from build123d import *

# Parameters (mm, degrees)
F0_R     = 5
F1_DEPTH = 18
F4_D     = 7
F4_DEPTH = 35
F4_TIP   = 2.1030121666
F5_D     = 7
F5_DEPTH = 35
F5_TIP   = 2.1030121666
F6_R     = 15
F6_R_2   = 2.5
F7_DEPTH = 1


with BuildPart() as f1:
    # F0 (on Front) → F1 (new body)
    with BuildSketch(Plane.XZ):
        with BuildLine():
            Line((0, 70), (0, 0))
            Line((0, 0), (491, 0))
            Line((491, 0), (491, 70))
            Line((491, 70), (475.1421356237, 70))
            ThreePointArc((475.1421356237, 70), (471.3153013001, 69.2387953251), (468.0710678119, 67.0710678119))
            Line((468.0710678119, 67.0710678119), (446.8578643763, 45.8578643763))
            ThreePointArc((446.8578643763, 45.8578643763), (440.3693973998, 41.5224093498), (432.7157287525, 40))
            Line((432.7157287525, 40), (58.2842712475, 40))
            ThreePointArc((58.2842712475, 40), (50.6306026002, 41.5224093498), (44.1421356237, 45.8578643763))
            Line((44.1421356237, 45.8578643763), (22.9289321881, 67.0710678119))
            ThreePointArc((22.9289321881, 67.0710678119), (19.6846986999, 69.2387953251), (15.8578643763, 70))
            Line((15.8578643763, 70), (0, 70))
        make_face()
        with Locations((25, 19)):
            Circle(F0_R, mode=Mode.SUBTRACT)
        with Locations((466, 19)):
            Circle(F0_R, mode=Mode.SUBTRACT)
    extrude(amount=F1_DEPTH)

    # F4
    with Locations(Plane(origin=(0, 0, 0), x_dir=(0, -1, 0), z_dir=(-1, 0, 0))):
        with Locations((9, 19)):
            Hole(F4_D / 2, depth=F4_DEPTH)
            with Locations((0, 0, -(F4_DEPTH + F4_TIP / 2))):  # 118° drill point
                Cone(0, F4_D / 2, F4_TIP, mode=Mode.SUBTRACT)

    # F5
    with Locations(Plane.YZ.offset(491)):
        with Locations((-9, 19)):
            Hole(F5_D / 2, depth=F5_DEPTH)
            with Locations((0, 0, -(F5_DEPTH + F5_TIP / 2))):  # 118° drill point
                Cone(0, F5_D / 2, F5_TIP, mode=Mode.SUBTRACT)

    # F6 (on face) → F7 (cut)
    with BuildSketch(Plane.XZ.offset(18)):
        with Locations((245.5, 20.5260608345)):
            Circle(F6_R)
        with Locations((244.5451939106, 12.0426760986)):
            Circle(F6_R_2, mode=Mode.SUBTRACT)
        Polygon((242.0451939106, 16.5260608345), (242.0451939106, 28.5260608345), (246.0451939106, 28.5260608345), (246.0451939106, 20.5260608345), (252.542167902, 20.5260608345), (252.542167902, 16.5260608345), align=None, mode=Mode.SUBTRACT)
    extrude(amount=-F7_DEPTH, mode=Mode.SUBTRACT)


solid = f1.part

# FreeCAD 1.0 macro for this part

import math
import FreeCAD as App
import Part
import Sketcher

V = App.Vector


def add_polygon(sketch, points):
    """Adds a closed chain of lines whose ends are joined by coincident constraints."""
    first, n = sketch.GeometryCount, len(points)
    for a, b in zip(points, points[1:] + points[:1]):
        sketch.addGeometry(Part.LineSegment(App.Vector(*a, 0), App.Vector(*b, 0)), False)
    for i in range(n):
        sketch.addConstraint(Sketcher.Constraint("Coincident", first + i, 2, first + (i + 1) % n, 1))

doc = App.newDocument("Part")
body = doc.addObject("PartDesign::Body", "Body")

sketch1 = body.newObject("Sketcher::SketchObject", "Sketch")
sketch1.AttachmentSupport = (doc.getObject("XZ_Plane"), [""])
sketch1.MapMode = "FlatFace"
sketch1.addGeometry([
    Part.LineSegment(V(0, 70, 0), V(0, 0, 0)),
    Part.LineSegment(V(0, 0, 0), V(491, 0, 0)),
    Part.LineSegment(V(491, 0, 0), V(491, 70, 0)),
    Part.LineSegment(V(491, 70, 0), V(475.142136, 70, 0)),
    Part.ArcOfCircle(Part.Circle(V(475.142136, 60, 0), V(0, 0, 1), 10), math.radians(90), math.radians(135)),
    Part.LineSegment(V(468.071068, 67.071068, 0), V(446.857864, 45.857864, 0)),
    Part.ArcOfCircle(Part.Circle(V(432.715729, 60, 0), V(0, 0, 1), 20), math.radians(-90), math.radians(-45)),
    Part.LineSegment(V(432.715729, 40, 0), V(58.284271, 40, 0)),
    Part.ArcOfCircle(Part.Circle(V(58.284271, 60, 0), V(0, 0, 1), 20), math.radians(-135), math.radians(-90)),
    Part.LineSegment(V(44.142136, 45.857864, 0), V(22.928932, 67.071068, 0)),
    Part.ArcOfCircle(Part.Circle(V(15.857864, 60, 0), V(0, 0, 1), 10), math.radians(45), math.radians(90)),
    Part.LineSegment(V(15.857864, 70, 0), V(0, 70, 0)),
    Part.Circle(V(25, 19, 0), V(0, 0, 1), 5),
    Part.Circle(V(466, 19, 0), V(0, 0, 1), 5),
], False)
sketch1.addConstraint([
    Sketcher.Constraint("Coincident", 0, 2, 1, 1),
    Sketcher.Constraint("Coincident", 1, 2, 2, 1),
    Sketcher.Constraint("Coincident", 2, 2, 3, 1),
    Sketcher.Constraint("Tangent", 3, 2, 4, 1),
    Sketcher.Constraint("Tangent", 4, 2, 5, 1),
    Sketcher.Constraint("Tangent", 5, 2, 6, 2),
    Sketcher.Constraint("Tangent", 6, 1, 7, 1),
    Sketcher.Constraint("Tangent", 7, 2, 8, 2),
    Sketcher.Constraint("Tangent", 8, 1, 9, 1),
    Sketcher.Constraint("Tangent", 9, 2, 10, 1),
    Sketcher.Constraint("Tangent", 10, 2, 11, 1),
    Sketcher.Constraint("Coincident", 11, 2, 0, 1),
    Sketcher.Constraint("Vertical", 0),
    Sketcher.Constraint("Horizontal", 1),
    Sketcher.Constraint("Vertical", 2),
    Sketcher.Constraint("Horizontal", 3),
    Sketcher.Constraint("Horizontal", 7),
    Sketcher.Constraint("Horizontal", 11),
    Sketcher.Constraint("Coincident", 0, 2, -1, 1),
    Sketcher.Constraint("Equal", 6, 8),
    Sketcher.Constraint("Equal", 4, 10),
    Sketcher.Constraint("Equal", 12, 13),
    Sketcher.Constraint("Perpendicular", 5, 9),
    Sketcher.Constraint("Horizontal", 4, 3, 6, 3),
    Sketcher.Constraint("Horizontal", 8, 3, 10, 3),
    Sketcher.Constraint("Horizontal", 12, 3, 13, 3),
    Sketcher.Constraint("Horizontal", 5, 2, 8, 1),
    Sketcher.Constraint("Equal", 3, 11),
    Sketcher.Constraint("Diameter", 12, 10.0),
    Sketcher.Constraint("Radius", 4, 10.0),
    Sketcher.Constraint("Radius", 6, 20.0),
    Sketcher.Constraint("DistanceX", 1, 1, 1, 2, 491.0),
    Sketcher.Constraint("DistanceY", 0, 2, 0, 1, 70.0),
    Sketcher.Constraint("DistanceX", -1, 1, 12, 3, 25.0),
    Sketcher.Constraint("DistanceY", -1, 1, 12, 3, 19.0),
    Sketcher.Constraint("DistanceX", -1, 1, 13, 3, 466.0),
    Sketcher.Constraint("DistanceX", 3, 2, 3, 1, 15.857864),
])
pad1 = body.newObject("PartDesign::Pad", "Pad")
pad1.Profile = sketch1
pad1.Length = 18

sketch2 = body.newObject("Sketcher::SketchObject", "Sketch001")
sketch2.AttachmentSupport = (doc.getObject("YZ_Plane"), [""])
sketch2.MapMode = "FlatFace"
sketch2.addGeometry(Part.Circle(V(-9, 19, 0), V(0, 0, 1), 3.5), False)
sketch2.addConstraint([
    Sketcher.Constraint("Diameter", 0, 7.0),
    Sketcher.Constraint("DistanceX", 0, 3, -1, 1, 9.0),
    Sketcher.Constraint("DistanceY", -1, 1, 0, 3, 19.0),
])
doc.recompute()
hole = body.newObject("PartDesign::Hole", "Hole")
hole.Profile = sketch2
hole.ThreadType = "None"
hole.Diameter = 7
hole.DepthType = "Dimension"
hole.Depth = 35
hole.DrillPoint = "Angled"
hole.DrillPointAngle = 118
hole.Reversed = True

sketch3 = body.newObject("Sketcher::SketchObject", "Sketch002")
sketch3.AttachmentSupport = (doc.getObject("YZ_Plane"), [""])
sketch3.MapMode = "FlatFace"
sketch3.AttachmentOffset = App.Placement(V(0, 0, 491), App.Rotation())
sketch3.addGeometry(Part.Circle(V(-9, 19, 0), V(0, 0, 1), 3.5), False)
sketch3.addConstraint([
    Sketcher.Constraint("Diameter", 0, 7.0),
    Sketcher.Constraint("DistanceX", 0, 3, -1, 1, 9.0),
    Sketcher.Constraint("DistanceY", -1, 1, 0, 3, 19.0),
])
doc.recompute()
hole2 = body.newObject("PartDesign::Hole", "Hole001")
hole2.Profile = sketch3
hole2.ThreadType = "None"
hole2.Diameter = 7
hole2.DepthType = "Dimension"
hole2.Depth = 35
hole2.DrillPoint = "Angled"
hole2.DrillPointAngle = 118

sketch4 = body.newObject("Sketcher::SketchObject", "Sketch003")
sketch4.AttachmentSupport = (doc.getObject("XZ_Plane"), [""])
sketch4.MapMode = "FlatFace"
sketch4.AttachmentOffset = App.Placement(V(0, 0, 18), App.Rotation())
sketch4.addGeometry(Part.Circle(V(245.5, 20.526061, 0), V(0, 0, 1), 15), False)
sketch4.addGeometry(Part.Circle(V(244.545194, 12.042676, 0), V(0, 0, 1), 2.5), False)
add_polygon(sketch4, [(252.542168, 16.526061), (242.045194, 16.526061), (242.045194, 28.526061), (246.045194, 28.526061), (246.045194, 20.526061), (252.542168, 20.526061)])
sketch4.addConstraint([
    Sketcher.Constraint("Horizontal", 2),
    Sketcher.Constraint("Vertical", 3),
    Sketcher.Constraint("Horizontal", 4),
    Sketcher.Constraint("Vertical", 5),
    Sketcher.Constraint("Horizontal", 6),
    Sketcher.Constraint("Vertical", 7),
    Sketcher.Constraint("Horizontal", 0, 3, 5, 2),
    Sketcher.Constraint("Equal", 4, 7),
    Sketcher.Constraint("Diameter", 0, 30.0),
    Sketcher.Constraint("Diameter", 1, 5.0),
    Sketcher.Constraint("DistanceX", 4, 1, 4, 2, 4.0),
    Sketcher.Constraint("DistanceY", 3, 1, 3, 2, 12.0),
    Sketcher.Constraint("DistanceX", -1, 1, 0, 3, 245.5),
    Sketcher.Constraint("DistanceX", 2, 2, 1, 3, 2.5),
    Sketcher.Constraint("DistanceX", 2, 2, 2, 1, 10.496974),
    Sketcher.Constraint("DistanceY", -1, 1, 0, 3, 20.526061),
    Sketcher.Constraint("DistanceX", -1, 1, 1, 3, 244.545194),
    Sketcher.Constraint("DistanceY", -1, 1, 1, 3, 12.042676),
])
pocket1 = body.newObject("PartDesign::Pocket", "Pocket")
pocket1.Profile = sketch4
pocket1.Length = 1

doc.recompute()
